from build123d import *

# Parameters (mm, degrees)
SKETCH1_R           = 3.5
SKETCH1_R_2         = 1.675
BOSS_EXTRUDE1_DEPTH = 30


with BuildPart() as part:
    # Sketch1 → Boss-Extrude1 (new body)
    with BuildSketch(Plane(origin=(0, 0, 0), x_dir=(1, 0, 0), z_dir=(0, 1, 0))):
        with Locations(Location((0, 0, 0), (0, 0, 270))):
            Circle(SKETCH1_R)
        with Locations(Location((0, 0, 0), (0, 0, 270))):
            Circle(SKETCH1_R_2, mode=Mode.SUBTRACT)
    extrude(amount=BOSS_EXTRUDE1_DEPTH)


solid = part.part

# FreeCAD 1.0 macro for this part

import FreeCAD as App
import Part
import Sketcher
from FreeCAD import Vector
Q = App.Units.Quantity

doc = App.newDocument("Part")
body = doc.addObject("PartDesign::Body", "Body")

# Sketch on XZ plane
sketch1 = body.newObject("Sketcher::SketchObject", "Sketch")
sketch1.AttachmentSupport = (doc.getObject("XZ_Plane"), [""])
sketch1.MapMode = "FlatFace"
sketch1.addGeometry([
    Part.Circle(Vector(0, 0, 0), Vector(0, 0, 1), 3.5),
    Part.Circle(Vector(0, 0, 0), Vector(0, 0, 1), 1.7),
], False)
sketch1.addConstraint([
    Sketcher.Constraint("Coincident", 0, 3, -1, 1),
    Sketcher.Constraint("Coincident", 1, 3, -1, 1),
    Sketcher.Constraint("Diameter", 0, Q("7 mm")),
    Sketcher.Constraint("Diameter", 1, Q("3.35 mm")),
])
pad1 = body.newObject("PartDesign::Pad", "Pad")
pad1.Profile = sketch1
pad1.Length = 30
pad1.Reversed = True

doc.recompute()
